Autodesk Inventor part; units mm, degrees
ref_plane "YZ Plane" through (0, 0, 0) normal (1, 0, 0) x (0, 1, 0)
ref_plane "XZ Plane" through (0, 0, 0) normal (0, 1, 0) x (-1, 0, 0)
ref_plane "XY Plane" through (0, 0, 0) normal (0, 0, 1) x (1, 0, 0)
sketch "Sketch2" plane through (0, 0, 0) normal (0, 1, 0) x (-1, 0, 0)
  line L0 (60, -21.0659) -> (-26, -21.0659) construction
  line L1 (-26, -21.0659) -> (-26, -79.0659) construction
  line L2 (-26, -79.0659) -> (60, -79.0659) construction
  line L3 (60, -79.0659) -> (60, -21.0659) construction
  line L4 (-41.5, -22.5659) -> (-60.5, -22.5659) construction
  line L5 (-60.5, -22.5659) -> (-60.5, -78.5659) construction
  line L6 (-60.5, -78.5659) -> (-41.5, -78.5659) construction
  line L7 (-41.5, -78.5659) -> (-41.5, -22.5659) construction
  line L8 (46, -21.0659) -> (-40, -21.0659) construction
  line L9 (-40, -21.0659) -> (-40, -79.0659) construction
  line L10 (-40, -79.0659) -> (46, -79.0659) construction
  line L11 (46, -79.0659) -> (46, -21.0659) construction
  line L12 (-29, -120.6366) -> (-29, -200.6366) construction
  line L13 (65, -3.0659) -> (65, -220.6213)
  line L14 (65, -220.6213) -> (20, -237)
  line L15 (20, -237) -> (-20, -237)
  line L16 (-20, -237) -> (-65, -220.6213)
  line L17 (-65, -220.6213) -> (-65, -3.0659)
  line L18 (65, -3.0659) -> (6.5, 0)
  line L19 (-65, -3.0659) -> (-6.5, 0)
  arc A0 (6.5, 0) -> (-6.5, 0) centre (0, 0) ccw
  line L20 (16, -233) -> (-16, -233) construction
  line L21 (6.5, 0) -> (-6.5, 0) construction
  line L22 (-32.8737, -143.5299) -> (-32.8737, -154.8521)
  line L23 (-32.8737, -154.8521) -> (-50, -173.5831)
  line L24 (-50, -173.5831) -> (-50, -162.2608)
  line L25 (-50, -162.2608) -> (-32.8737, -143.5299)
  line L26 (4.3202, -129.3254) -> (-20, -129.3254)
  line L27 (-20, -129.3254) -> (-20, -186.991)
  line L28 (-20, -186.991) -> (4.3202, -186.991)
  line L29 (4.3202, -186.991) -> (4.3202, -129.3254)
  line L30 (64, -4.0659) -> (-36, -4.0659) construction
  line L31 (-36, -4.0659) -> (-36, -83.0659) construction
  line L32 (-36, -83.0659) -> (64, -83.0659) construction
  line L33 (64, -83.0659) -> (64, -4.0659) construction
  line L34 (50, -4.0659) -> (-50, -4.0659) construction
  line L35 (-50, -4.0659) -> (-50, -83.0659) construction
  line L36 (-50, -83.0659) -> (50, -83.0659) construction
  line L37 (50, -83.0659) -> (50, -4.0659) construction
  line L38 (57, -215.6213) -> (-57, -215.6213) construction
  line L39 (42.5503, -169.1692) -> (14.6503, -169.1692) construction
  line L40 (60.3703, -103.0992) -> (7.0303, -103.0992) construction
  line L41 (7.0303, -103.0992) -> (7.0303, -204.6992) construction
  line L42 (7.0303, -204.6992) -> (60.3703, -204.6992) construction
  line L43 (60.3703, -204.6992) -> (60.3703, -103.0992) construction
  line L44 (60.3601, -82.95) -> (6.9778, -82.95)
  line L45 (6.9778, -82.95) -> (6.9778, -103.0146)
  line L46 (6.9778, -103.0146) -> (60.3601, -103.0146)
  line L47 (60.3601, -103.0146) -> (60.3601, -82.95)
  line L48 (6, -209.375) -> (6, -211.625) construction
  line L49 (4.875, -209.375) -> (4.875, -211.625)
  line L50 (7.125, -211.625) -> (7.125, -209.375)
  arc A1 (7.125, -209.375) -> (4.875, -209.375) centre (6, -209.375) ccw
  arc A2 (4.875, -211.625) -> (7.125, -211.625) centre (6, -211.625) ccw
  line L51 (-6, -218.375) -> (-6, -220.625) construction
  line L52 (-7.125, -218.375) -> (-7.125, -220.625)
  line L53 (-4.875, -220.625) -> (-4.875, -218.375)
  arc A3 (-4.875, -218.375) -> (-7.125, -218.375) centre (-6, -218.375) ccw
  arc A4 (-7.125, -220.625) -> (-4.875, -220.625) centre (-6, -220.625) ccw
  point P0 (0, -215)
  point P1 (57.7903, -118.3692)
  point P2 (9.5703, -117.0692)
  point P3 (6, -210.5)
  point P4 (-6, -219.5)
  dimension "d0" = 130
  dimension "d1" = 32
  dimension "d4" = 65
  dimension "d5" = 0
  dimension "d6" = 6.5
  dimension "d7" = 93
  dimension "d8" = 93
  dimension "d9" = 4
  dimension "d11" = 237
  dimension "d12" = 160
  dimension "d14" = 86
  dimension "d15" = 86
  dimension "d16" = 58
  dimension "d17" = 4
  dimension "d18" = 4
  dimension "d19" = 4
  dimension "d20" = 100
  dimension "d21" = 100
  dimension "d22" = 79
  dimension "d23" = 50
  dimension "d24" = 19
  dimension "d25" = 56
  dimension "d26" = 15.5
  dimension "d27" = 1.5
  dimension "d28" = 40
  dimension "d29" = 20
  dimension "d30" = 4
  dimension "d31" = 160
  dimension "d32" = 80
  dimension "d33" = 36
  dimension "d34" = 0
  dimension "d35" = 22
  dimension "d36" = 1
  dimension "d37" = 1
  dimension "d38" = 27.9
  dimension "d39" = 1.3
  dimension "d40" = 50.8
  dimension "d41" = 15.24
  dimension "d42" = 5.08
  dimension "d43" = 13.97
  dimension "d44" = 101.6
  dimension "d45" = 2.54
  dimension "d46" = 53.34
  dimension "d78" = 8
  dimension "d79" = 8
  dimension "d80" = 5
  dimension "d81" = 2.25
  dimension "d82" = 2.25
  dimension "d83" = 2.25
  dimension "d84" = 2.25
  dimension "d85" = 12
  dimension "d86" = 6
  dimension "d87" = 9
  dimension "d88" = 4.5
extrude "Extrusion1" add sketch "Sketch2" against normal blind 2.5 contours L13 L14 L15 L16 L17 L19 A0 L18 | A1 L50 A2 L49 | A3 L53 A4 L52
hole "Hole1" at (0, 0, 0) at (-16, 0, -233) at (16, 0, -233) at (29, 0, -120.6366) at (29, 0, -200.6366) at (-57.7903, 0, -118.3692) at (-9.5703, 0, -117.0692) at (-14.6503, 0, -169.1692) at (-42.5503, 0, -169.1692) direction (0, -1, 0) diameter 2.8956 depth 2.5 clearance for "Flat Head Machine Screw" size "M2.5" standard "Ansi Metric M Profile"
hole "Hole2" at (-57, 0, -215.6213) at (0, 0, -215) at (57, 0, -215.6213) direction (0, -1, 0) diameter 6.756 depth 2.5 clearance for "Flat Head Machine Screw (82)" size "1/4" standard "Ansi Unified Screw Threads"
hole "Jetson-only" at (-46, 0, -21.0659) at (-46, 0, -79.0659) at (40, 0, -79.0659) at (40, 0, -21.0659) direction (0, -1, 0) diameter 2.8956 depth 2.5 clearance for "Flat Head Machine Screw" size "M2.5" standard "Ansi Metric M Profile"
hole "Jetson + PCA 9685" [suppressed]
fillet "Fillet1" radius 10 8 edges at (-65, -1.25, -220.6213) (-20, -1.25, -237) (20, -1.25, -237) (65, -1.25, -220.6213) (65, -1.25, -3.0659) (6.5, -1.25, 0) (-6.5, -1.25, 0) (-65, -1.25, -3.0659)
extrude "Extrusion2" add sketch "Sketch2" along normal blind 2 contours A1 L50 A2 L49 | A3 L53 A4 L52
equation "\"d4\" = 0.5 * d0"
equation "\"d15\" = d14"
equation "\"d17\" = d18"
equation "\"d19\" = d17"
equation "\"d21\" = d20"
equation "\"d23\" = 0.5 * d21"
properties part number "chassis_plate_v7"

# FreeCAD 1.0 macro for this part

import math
import FreeCAD as App
import Part
import Sketcher

V = App.Vector
Q = App.Units.Quantity


def edges_at(feature, points):
    """Names of the edges that pass closest to the given points."""
    edges = feature.Shape.Edges
    near = lambda p: min(range(len(edges)), key=lambda i: edges[i].distToShape(Part.Vertex(*p))[0])
    return sorted({f"Edge{near(p) + 1}" for p in points})

doc = App.newDocument("Part")
params = doc.addObject("Spreadsheet::Sheet", "Params")
for row, (alias, value) in enumerate([
    ("sketch1_radius", "6.5 mm"),
    ("sketch1_width", "40 mm"),
    ("pad1_length", "2.5 mm"),
    ("hole_diameter", "2.8956 mm"),
    ("hole_depth", "2.5 mm"),
    ("hole2_diameter", "6.756 mm"),
    ("hole2_depth", "2.5 mm"),
    ("hole3_diameter", "2.8956 mm"),
    ("hole3_depth", "2.5 mm"),
    ("fillet_radius", "10 mm"),
    ("sketch5_height", "2.25 mm"),
    ("pad2_length", "2 mm"),
], start=1):
    params.set(f"A{row}", alias)
    params.set(f"B{row}", "=" + value)
    params.setAlias(f"B{row}", alias)

body = doc.addObject("PartDesign::Body", "Body")

# Sketch on XZ plane
sketch1 = body.newObject("Sketcher::SketchObject", "Sketch")
sketch1.AttachmentSupport = (doc.getObject("XZ_Plane"), [""])
sketch1.MapMode = "FlatFace"
sketch1.addGeometry([
    Part.LineSegment(V(-65, -221, 0), V(-65, -3, 0)),  # 0
    Part.LineSegment(V(-65, -3, 0), V(-6, 0, 0)),  # 1
    Part.ArcOfCircle(Part.Circle(V(0, 0, 0), V(0, 0, 1), 6), math.radians(0), math.radians(180)),  # 2
    Part.LineSegment(V(6, 0, 0), V(65, -3, 0)),  # 3
    Part.LineSegment(V(65, -3, 0), V(65, -221, 0)),  # 4
    Part.LineSegment(V(65, -221, 0), V(20, -237, 0)),  # 5
    Part.LineSegment(V(20, -237, 0), V(-20, -237, 0)),  # 6
    Part.LineSegment(V(-20, -237, 0), V(-65, -221, 0)),  # 7
    Part.LineSegment(V(50, -162, 0), V(33, -144, 0)),  # 8
    Part.LineSegment(V(33, -144, 0), V(33, -155, 0)),  # 9
    Part.LineSegment(V(33, -155, 0), V(50, -174, 0)),  # 10
    Part.LineSegment(V(50, -174, 0), V(50, -162, 0)),  # 11
    Part.LineSegment(V(20, -129, 0), V(-4, -129, 0)),  # 12
    Part.LineSegment(V(-4, -129, 0), V(-4, -187, 0)),  # 13
    Part.LineSegment(V(-4, -187, 0), V(20, -187, 0)),  # 14
    Part.LineSegment(V(20, -187, 0), V(20, -129, 0)),  # 15
    Part.LineSegment(V(-7, -83, 0), V(-60, -83, 0)),  # 16
    Part.LineSegment(V(-60, -83, 0), V(-60, -103, 0)),  # 17
    Part.LineSegment(V(-60, -103, 0), V(-7, -103, 0)),  # 18
    Part.LineSegment(V(-7, -103, 0), V(-7, -83, 0)),  # 19
], False)
sketch1.addConstraint([
    Sketcher.Constraint("Coincident", 0, 2, 1, 1),
    Sketcher.Constraint("Coincident", 1, 2, 2, 2),
    Sketcher.Constraint("Coincident", 2, 1, 3, 1),
    Sketcher.Constraint("Coincident", 3, 2, 4, 1),
    Sketcher.Constraint("Coincident", 4, 2, 5, 1),
    Sketcher.Constraint("Coincident", 5, 2, 6, 1),
    Sketcher.Constraint("Coincident", 6, 2, 7, 1),
    Sketcher.Constraint("Coincident", 7, 2, 0, 1),
    Sketcher.Constraint("Coincident", 8, 2, 9, 1),
    Sketcher.Constraint("Coincident", 9, 2, 10, 1),
    Sketcher.Constraint("Coincident", 10, 2, 11, 1),
    Sketcher.Constraint("Coincident", 11, 2, 8, 1),
    Sketcher.Constraint("Coincident", 12, 2, 13, 1),
    Sketcher.Constraint("Coincident", 13, 2, 14, 1),
    Sketcher.Constraint("Coincident", 14, 2, 15, 1),
    Sketcher.Constraint("Coincident", 15, 2, 12, 1),
    Sketcher.Constraint("Coincident", 16, 2, 17, 1),
    Sketcher.Constraint("Coincident", 17, 2, 18, 1),
    Sketcher.Constraint("Coincident", 18, 2, 19, 1),
    Sketcher.Constraint("Coincident", 19, 2, 16, 1),
    Sketcher.Constraint("Vertical", 0),
    Sketcher.Constraint("Vertical", 4),
    Sketcher.Constraint("Horizontal", 6),
    Sketcher.Constraint("Vertical", 9),
    Sketcher.Constraint("Vertical", 11),
    Sketcher.Constraint("Horizontal", 12),
    Sketcher.Constraint("Vertical", 13),
    Sketcher.Constraint("Horizontal", 14),
    Sketcher.Constraint("Vertical", 15),
    Sketcher.Constraint("Horizontal", 16),
    Sketcher.Constraint("Vertical", 17),
    Sketcher.Constraint("Horizontal", 18),
    Sketcher.Constraint("Vertical", 19),
    Sketcher.Constraint("Coincident", 2, 3, -1, 1),
    Sketcher.Constraint("Symmetric", 0, 2, 3, 2, -2),
    Sketcher.Constraint("PointOnObject", 1, 2, -1),
    Sketcher.Constraint("PointOnObject", 2, 1, -1),
    Sketcher.Constraint("Parallel", 8, 10),
    Sketcher.Constraint("Horizontal", 4, 2, 7, 2),
    Sketcher.Constraint("Vertical", 5, 2, 14, 2),
    Sketcher.Constraint("Equal", 5, 7),
    Sketcher.Constraint("Radius", 2, Q("6.5 mm")),
    Sketcher.Constraint("DistanceX", 6, 2, 6, 1, Q("40 mm")),
    Sketcher.Constraint("Angle", 5, Q("-160 deg")),
    Sketcher.Constraint("DistanceX", 0, 2, -1, 1, Q("65 mm")),
    Sketcher.Constraint("DistanceY", 5, 2, -1, 1, Q("237 mm")),
    Sketcher.Constraint("DistanceX", -1, 1, 10, 2, Q("50 mm")),
    Sketcher.Constraint("Angle", 1, Q("3 deg")),
    Sketcher.Constraint("DistanceY", 8, 2, -1, 1, Q("143.53 mm")),
    Sketcher.Constraint("DistanceX", 16, 2, -1, 1, Q("60.36 mm")),
    Sketcher.Constraint("DistanceY", 16, 2, -1, 1, Q("82.95 mm")),
    Sketcher.Constraint("DistanceX", 16, 2, 12, 2, Q("56.04 mm")),
    Sketcher.Constraint("DistanceX", 16, 2, 16, 1, Q("53.3823 mm")),
    Sketcher.Constraint("DistanceY", 9, 2, 9, 1, Q("11.3222 mm")),
    Sketcher.Constraint("DistanceY", 13, 2, 13, 1, Q("57.6656 mm")),
    Sketcher.Constraint("DistanceY", 17, 2, 17, 1, Q("20.0646 mm")),
    Sketcher.Constraint("DistanceY", 10, 2, -1, 1, Q("173.583 mm")),
    Sketcher.Constraint("DistanceY", 13, 2, -1, 1, Q("186.991 mm")),
    Sketcher.Constraint("DistanceX", 12, 2, 8, 2, Q("37.194 mm")),
])
sketch1.setExpression("Constraints[41]", "Params.sketch1_radius")
sketch1.setExpression("Constraints[42]", "Params.sketch1_width")
pad1 = body.newObject("PartDesign::Pad", "Pad")
pad1.Profile = sketch1
pad1.setExpression("Length", "Params.pad1_length")

# Sketch on XZ plane
sketch2 = body.newObject("Sketcher::SketchObject", "Sketch001")
sketch2.AttachmentSupport = (doc.getObject("XZ_Plane"), [""])
sketch2.MapMode = "FlatFace"
sketch2.addGeometry([
    Part.Circle(V(0, 0, 0), V(0, 0, 1), 1.4),  # 0
    Part.Circle(V(-16, -233, 0), V(0, 0, 1), 1.4),  # 1
    Part.Circle(V(16, -233, 0), V(0, 0, 1), 1.4),  # 2
    Part.Circle(V(29, -120.6, 0), V(0, 0, 1), 1.4),  # 3
    Part.Circle(V(29, -200.6, 0), V(0, 0, 1), 1.4),  # 4
    Part.Circle(V(-57.8, -118.4, 0), V(0, 0, 1), 1.4),  # 5
    Part.Circle(V(-9.6, -117.1, 0), V(0, 0, 1), 1.4),  # 6
    Part.Circle(V(-14.7, -169.2, 0), V(0, 0, 1), 1.4),  # 7
    Part.Circle(V(-42.6, -169.2, 0), V(0, 0, 1), 1.4),  # 8
], False)
sketch2.addConstraint([
    Sketcher.Constraint("Coincident", 0, 3, -1, 1),
    Sketcher.Constraint("Equal", 0, 1),
    Sketcher.Constraint("Equal", 1, 2),
    Sketcher.Constraint("Equal", 2, 3),
    Sketcher.Constraint("Equal", 3, 4),
    Sketcher.Constraint("Equal", 4, 5),
    Sketcher.Constraint("Equal", 5, 6),
    Sketcher.Constraint("Equal", 6, 7),
    Sketcher.Constraint("Equal", 7, 8),
    Sketcher.Constraint("Symmetric", 1, 3, 2, 3, -2),
    Sketcher.Constraint("Horizontal", 7, 3, 8, 3),
    Sketcher.Constraint("Vertical", 3, 3, 4, 3),
    Sketcher.Constraint("DistanceX", 1, 3, -1, 1, Q("16 mm")),
    Sketcher.Constraint("DistanceY", 1, 3, -1, 1, Q("233 mm")),
    Sketcher.Constraint("DistanceX", -1, 1, 3, 3, Q("29 mm")),
    Sketcher.Constraint("DistanceY", 4, 3, 3, 3, Q("80 mm")),
    Sketcher.Constraint("Diameter", 0, Q("2.8956 mm")),
    Sketcher.Constraint("DistanceY", 5, 3, 6, 3, Q("1.3 mm")),
    Sketcher.Constraint("DistanceY", 7, 3, 6, 3, Q("52.1 mm")),
    Sketcher.Constraint("DistanceX", 8, 3, 7, 3, Q("27.9 mm")),
    Sketcher.Constraint("DistanceX", 5, 3, 6, 3, Q("48.22 mm")),
    Sketcher.Constraint("DistanceX", 7, 3, 6, 3, Q("5.08 mm")),
    Sketcher.Constraint("DistanceY", 3, 3, -1, 1, Q("120.6366 mm")),
    Sketcher.Constraint("DistanceX", 5, 3, -1, 1, Q("57.7903 mm")),
    Sketcher.Constraint("DistanceY", 5, 3, -1, 1, Q("118.3692 mm")),
])
doc.recompute()
hole = body.newObject("PartDesign::Hole", "Hole")
hole.Profile = sketch2
hole.ThreadType = "None"
hole.setExpression("Diameter", "Params.hole_diameter")
hole.DepthType = "Dimension"
hole.setExpression("Depth", "Params.hole_depth")
hole.DrillPoint = "Flat"
hole.Reversed = True

# Sketch on XZ plane
sketch3 = body.newObject("Sketcher::SketchObject", "Sketch002")
sketch3.AttachmentSupport = (doc.getObject("XZ_Plane"), [""])
sketch3.MapMode = "FlatFace"
sketch3.addGeometry([
    Part.Circle(V(-57, -215.6, 0), V(0, 0, 1), 3.4),
    Part.Circle(V(0, -215, 0), V(0, 0, 1), 3.4),
    Part.Circle(V(57, -215.6, 0), V(0, 0, 1), 3.4),
], False)
sketch3.addConstraint([
    Sketcher.Constraint("Equal", 0, 1),
    Sketcher.Constraint("Equal", 1, 2),
    Sketcher.Constraint("Symmetric", 0, 3, 2, 3, -2),
    Sketcher.Constraint("PointOnObject", 1, 3, -2),
    Sketcher.Constraint("Diameter", 0, Q("6.756 mm")),
    Sketcher.Constraint("DistanceX", 0, 3, -1, 1, Q("57 mm")),
    Sketcher.Constraint("DistanceY", 1, 3, -1, 1, Q("215 mm")),
    Sketcher.Constraint("DistanceY", 0, 3, -1, 1, Q("215.6213 mm")),
])
doc.recompute()
hole2 = body.newObject("PartDesign::Hole", "Hole001")
hole2.Profile = sketch3
hole2.ThreadType = "None"
hole2.setExpression("Diameter", "Params.hole2_diameter")
hole2.DepthType = "Dimension"
hole2.setExpression("Depth", "Params.hole2_depth")
hole2.DrillPoint = "Flat"
hole2.Reversed = True

# Sketch on XZ plane
sketch4 = body.newObject("Sketcher::SketchObject", "Sketch003")
sketch4.AttachmentSupport = (doc.getObject("XZ_Plane"), [""])
sketch4.MapMode = "FlatFace"
sketch4.addGeometry([
    Part.Circle(V(-46, -21.1, 0), V(0, 0, 1), 1.4),
    Part.Circle(V(-46, -79.1, 0), V(0, 0, 1), 1.4),
    Part.Circle(V(40, -79.1, 0), V(0, 0, 1), 1.4),
    Part.Circle(V(40, -21.1, 0), V(0, 0, 1), 1.4),
], False)
sketch4.addConstraint([
    Sketcher.Constraint("Equal", 0, 1),
    Sketcher.Constraint("Equal", 1, 2),
    Sketcher.Constraint("Equal", 2, 3),
    Sketcher.Constraint("Horizontal", 1, 3, 2, 3),
    Sketcher.Constraint("Horizontal", 0, 3, 3, 3),
    Sketcher.Constraint("Vertical", 0, 3, 1, 3),
    Sketcher.Constraint("Vertical", 2, 3, 3, 3),
    Sketcher.Constraint("DistanceX", 0, 3, -1, 1, Q("46 mm")),
    Sketcher.Constraint("DistanceX", -1, 1, 2, 3, Q("40 mm")),
    Sketcher.Constraint("DistanceY", 1, 3, 0, 3, Q("58 mm")),
    Sketcher.Constraint("Diameter", 0, Q("2.8956 mm")),
    Sketcher.Constraint("DistanceY", 0, 3, -1, 1, Q("21.066 mm")),
])
doc.recompute()
hole3 = body.newObject("PartDesign::Hole", "Hole002")
hole3.Profile = sketch4
hole3.ThreadType = "None"
hole3.setExpression("Diameter", "Params.hole3_diameter")
hole3.DepthType = "Dimension"
hole3.setExpression("Depth", "Params.hole3_depth")
hole3.DrillPoint = "Flat"
hole3.Reversed = True
doc.recompute()

fillet = body.newObject("PartDesign::Fillet", "Fillet")
fillet.Base = (hole3, edges_at(hole3, [
    (-65, -1.25, -220.621),
    (-20, -1.25, -237),
    (20, -1.25, -237),
    (65, -1.25, -220.621),
    (65, -1.25, -3.066),
    (6.5, -1.25, 0),
    (-6.5, -1.25, 0),
    (-65, -1.25, -3.066),
]))
fillet.setExpression("Radius", "Params.fillet_radius")

# Sketch on XZ plane
sketch5 = body.newObject("Sketcher::SketchObject", "Sketch004")
sketch5.AttachmentSupport = (doc.getObject("XZ_Plane"), [""])
sketch5.MapMode = "FlatFace"
sketch5.addGeometry([
    Part.ArcOfCircle(Part.Circle(V(-6, -209.4, 0), V(0, 0, 1), 1.1), math.radians(0), math.radians(180)),  # 0
    Part.LineSegment(V(-4.9, -209.4, 0), V(-4.9, -211.6, 0)),  # 1
    Part.ArcOfCircle(Part.Circle(V(-6, -211.6, 0), V(0, 0, 1), 1.1), math.radians(180), math.radians(360)),  # 2
    Part.LineSegment(V(-7.1, -211.6, 0), V(-7.1, -209.4, 0)),  # 3
    Part.ArcOfCircle(Part.Circle(V(6, -218.4, 0), V(0, 0, 1), 1.1), math.radians(0), math.radians(180)),  # 4
    Part.LineSegment(V(7.1, -218.4, 0), V(7.1, -220.6, 0)),  # 5
    Part.ArcOfCircle(Part.Circle(V(6, -220.6, 0), V(0, 0, 1), 1.1), math.radians(180), math.radians(360)),  # 6
    Part.LineSegment(V(4.9, -220.6, 0), V(4.9, -218.4, 0)),  # 7
], False)
sketch5.addConstraint([
    Sketcher.Constraint("Tangent", 0, 1, 1, 1),
    Sketcher.Constraint("Tangent", 1, 2, 2, 2),
    Sketcher.Constraint("Tangent", 2, 1, 3, 1),
    Sketcher.Constraint("Tangent", 3, 2, 0, 2),
    Sketcher.Constraint("Tangent", 4, 1, 5, 1),
    Sketcher.Constraint("Tangent", 5, 2, 6, 2),
    Sketcher.Constraint("Tangent", 6, 1, 7, 1),
    Sketcher.Constraint("Tangent", 7, 2, 4, 2),
    Sketcher.Constraint("Vertical", 1),
    Sketcher.Constraint("Vertical", 3),
    Sketcher.Constraint("Vertical", 5),
    Sketcher.Constraint("Vertical", 7),
    Sketcher.Constraint("Equal", 2, 4),
    Sketcher.Constraint("Equal", 3, 5),
    Sketcher.Constraint("DistanceX", 0, 3, -1, 1, Q("6 mm")),
    Sketcher.Constraint("DistanceX", -1, 1, 4, 3, Q("6 mm")),
    Sketcher.Constraint("Radius", 0, Q("1.125 mm")),
    Sketcher.Constraint("DistanceY", 4, 3, 0, 3, Q("9 mm")),
    Sketcher.Constraint("DistanceY", 1, 2, 1, 1, Q("2.25 mm")),
    Sketcher.Constraint("DistanceY", 0, 3, -1, 1, Q("209.375 mm")),
])
sketch5.setExpression("Constraints[18]", "Params.sketch5_height")
pad2 = body.newObject("PartDesign::Pad", "Pad001")
pad2.Profile = sketch5
pad2.setExpression("Length", "Params.pad2_length")
pad2.Reversed = True

doc.recompute()
